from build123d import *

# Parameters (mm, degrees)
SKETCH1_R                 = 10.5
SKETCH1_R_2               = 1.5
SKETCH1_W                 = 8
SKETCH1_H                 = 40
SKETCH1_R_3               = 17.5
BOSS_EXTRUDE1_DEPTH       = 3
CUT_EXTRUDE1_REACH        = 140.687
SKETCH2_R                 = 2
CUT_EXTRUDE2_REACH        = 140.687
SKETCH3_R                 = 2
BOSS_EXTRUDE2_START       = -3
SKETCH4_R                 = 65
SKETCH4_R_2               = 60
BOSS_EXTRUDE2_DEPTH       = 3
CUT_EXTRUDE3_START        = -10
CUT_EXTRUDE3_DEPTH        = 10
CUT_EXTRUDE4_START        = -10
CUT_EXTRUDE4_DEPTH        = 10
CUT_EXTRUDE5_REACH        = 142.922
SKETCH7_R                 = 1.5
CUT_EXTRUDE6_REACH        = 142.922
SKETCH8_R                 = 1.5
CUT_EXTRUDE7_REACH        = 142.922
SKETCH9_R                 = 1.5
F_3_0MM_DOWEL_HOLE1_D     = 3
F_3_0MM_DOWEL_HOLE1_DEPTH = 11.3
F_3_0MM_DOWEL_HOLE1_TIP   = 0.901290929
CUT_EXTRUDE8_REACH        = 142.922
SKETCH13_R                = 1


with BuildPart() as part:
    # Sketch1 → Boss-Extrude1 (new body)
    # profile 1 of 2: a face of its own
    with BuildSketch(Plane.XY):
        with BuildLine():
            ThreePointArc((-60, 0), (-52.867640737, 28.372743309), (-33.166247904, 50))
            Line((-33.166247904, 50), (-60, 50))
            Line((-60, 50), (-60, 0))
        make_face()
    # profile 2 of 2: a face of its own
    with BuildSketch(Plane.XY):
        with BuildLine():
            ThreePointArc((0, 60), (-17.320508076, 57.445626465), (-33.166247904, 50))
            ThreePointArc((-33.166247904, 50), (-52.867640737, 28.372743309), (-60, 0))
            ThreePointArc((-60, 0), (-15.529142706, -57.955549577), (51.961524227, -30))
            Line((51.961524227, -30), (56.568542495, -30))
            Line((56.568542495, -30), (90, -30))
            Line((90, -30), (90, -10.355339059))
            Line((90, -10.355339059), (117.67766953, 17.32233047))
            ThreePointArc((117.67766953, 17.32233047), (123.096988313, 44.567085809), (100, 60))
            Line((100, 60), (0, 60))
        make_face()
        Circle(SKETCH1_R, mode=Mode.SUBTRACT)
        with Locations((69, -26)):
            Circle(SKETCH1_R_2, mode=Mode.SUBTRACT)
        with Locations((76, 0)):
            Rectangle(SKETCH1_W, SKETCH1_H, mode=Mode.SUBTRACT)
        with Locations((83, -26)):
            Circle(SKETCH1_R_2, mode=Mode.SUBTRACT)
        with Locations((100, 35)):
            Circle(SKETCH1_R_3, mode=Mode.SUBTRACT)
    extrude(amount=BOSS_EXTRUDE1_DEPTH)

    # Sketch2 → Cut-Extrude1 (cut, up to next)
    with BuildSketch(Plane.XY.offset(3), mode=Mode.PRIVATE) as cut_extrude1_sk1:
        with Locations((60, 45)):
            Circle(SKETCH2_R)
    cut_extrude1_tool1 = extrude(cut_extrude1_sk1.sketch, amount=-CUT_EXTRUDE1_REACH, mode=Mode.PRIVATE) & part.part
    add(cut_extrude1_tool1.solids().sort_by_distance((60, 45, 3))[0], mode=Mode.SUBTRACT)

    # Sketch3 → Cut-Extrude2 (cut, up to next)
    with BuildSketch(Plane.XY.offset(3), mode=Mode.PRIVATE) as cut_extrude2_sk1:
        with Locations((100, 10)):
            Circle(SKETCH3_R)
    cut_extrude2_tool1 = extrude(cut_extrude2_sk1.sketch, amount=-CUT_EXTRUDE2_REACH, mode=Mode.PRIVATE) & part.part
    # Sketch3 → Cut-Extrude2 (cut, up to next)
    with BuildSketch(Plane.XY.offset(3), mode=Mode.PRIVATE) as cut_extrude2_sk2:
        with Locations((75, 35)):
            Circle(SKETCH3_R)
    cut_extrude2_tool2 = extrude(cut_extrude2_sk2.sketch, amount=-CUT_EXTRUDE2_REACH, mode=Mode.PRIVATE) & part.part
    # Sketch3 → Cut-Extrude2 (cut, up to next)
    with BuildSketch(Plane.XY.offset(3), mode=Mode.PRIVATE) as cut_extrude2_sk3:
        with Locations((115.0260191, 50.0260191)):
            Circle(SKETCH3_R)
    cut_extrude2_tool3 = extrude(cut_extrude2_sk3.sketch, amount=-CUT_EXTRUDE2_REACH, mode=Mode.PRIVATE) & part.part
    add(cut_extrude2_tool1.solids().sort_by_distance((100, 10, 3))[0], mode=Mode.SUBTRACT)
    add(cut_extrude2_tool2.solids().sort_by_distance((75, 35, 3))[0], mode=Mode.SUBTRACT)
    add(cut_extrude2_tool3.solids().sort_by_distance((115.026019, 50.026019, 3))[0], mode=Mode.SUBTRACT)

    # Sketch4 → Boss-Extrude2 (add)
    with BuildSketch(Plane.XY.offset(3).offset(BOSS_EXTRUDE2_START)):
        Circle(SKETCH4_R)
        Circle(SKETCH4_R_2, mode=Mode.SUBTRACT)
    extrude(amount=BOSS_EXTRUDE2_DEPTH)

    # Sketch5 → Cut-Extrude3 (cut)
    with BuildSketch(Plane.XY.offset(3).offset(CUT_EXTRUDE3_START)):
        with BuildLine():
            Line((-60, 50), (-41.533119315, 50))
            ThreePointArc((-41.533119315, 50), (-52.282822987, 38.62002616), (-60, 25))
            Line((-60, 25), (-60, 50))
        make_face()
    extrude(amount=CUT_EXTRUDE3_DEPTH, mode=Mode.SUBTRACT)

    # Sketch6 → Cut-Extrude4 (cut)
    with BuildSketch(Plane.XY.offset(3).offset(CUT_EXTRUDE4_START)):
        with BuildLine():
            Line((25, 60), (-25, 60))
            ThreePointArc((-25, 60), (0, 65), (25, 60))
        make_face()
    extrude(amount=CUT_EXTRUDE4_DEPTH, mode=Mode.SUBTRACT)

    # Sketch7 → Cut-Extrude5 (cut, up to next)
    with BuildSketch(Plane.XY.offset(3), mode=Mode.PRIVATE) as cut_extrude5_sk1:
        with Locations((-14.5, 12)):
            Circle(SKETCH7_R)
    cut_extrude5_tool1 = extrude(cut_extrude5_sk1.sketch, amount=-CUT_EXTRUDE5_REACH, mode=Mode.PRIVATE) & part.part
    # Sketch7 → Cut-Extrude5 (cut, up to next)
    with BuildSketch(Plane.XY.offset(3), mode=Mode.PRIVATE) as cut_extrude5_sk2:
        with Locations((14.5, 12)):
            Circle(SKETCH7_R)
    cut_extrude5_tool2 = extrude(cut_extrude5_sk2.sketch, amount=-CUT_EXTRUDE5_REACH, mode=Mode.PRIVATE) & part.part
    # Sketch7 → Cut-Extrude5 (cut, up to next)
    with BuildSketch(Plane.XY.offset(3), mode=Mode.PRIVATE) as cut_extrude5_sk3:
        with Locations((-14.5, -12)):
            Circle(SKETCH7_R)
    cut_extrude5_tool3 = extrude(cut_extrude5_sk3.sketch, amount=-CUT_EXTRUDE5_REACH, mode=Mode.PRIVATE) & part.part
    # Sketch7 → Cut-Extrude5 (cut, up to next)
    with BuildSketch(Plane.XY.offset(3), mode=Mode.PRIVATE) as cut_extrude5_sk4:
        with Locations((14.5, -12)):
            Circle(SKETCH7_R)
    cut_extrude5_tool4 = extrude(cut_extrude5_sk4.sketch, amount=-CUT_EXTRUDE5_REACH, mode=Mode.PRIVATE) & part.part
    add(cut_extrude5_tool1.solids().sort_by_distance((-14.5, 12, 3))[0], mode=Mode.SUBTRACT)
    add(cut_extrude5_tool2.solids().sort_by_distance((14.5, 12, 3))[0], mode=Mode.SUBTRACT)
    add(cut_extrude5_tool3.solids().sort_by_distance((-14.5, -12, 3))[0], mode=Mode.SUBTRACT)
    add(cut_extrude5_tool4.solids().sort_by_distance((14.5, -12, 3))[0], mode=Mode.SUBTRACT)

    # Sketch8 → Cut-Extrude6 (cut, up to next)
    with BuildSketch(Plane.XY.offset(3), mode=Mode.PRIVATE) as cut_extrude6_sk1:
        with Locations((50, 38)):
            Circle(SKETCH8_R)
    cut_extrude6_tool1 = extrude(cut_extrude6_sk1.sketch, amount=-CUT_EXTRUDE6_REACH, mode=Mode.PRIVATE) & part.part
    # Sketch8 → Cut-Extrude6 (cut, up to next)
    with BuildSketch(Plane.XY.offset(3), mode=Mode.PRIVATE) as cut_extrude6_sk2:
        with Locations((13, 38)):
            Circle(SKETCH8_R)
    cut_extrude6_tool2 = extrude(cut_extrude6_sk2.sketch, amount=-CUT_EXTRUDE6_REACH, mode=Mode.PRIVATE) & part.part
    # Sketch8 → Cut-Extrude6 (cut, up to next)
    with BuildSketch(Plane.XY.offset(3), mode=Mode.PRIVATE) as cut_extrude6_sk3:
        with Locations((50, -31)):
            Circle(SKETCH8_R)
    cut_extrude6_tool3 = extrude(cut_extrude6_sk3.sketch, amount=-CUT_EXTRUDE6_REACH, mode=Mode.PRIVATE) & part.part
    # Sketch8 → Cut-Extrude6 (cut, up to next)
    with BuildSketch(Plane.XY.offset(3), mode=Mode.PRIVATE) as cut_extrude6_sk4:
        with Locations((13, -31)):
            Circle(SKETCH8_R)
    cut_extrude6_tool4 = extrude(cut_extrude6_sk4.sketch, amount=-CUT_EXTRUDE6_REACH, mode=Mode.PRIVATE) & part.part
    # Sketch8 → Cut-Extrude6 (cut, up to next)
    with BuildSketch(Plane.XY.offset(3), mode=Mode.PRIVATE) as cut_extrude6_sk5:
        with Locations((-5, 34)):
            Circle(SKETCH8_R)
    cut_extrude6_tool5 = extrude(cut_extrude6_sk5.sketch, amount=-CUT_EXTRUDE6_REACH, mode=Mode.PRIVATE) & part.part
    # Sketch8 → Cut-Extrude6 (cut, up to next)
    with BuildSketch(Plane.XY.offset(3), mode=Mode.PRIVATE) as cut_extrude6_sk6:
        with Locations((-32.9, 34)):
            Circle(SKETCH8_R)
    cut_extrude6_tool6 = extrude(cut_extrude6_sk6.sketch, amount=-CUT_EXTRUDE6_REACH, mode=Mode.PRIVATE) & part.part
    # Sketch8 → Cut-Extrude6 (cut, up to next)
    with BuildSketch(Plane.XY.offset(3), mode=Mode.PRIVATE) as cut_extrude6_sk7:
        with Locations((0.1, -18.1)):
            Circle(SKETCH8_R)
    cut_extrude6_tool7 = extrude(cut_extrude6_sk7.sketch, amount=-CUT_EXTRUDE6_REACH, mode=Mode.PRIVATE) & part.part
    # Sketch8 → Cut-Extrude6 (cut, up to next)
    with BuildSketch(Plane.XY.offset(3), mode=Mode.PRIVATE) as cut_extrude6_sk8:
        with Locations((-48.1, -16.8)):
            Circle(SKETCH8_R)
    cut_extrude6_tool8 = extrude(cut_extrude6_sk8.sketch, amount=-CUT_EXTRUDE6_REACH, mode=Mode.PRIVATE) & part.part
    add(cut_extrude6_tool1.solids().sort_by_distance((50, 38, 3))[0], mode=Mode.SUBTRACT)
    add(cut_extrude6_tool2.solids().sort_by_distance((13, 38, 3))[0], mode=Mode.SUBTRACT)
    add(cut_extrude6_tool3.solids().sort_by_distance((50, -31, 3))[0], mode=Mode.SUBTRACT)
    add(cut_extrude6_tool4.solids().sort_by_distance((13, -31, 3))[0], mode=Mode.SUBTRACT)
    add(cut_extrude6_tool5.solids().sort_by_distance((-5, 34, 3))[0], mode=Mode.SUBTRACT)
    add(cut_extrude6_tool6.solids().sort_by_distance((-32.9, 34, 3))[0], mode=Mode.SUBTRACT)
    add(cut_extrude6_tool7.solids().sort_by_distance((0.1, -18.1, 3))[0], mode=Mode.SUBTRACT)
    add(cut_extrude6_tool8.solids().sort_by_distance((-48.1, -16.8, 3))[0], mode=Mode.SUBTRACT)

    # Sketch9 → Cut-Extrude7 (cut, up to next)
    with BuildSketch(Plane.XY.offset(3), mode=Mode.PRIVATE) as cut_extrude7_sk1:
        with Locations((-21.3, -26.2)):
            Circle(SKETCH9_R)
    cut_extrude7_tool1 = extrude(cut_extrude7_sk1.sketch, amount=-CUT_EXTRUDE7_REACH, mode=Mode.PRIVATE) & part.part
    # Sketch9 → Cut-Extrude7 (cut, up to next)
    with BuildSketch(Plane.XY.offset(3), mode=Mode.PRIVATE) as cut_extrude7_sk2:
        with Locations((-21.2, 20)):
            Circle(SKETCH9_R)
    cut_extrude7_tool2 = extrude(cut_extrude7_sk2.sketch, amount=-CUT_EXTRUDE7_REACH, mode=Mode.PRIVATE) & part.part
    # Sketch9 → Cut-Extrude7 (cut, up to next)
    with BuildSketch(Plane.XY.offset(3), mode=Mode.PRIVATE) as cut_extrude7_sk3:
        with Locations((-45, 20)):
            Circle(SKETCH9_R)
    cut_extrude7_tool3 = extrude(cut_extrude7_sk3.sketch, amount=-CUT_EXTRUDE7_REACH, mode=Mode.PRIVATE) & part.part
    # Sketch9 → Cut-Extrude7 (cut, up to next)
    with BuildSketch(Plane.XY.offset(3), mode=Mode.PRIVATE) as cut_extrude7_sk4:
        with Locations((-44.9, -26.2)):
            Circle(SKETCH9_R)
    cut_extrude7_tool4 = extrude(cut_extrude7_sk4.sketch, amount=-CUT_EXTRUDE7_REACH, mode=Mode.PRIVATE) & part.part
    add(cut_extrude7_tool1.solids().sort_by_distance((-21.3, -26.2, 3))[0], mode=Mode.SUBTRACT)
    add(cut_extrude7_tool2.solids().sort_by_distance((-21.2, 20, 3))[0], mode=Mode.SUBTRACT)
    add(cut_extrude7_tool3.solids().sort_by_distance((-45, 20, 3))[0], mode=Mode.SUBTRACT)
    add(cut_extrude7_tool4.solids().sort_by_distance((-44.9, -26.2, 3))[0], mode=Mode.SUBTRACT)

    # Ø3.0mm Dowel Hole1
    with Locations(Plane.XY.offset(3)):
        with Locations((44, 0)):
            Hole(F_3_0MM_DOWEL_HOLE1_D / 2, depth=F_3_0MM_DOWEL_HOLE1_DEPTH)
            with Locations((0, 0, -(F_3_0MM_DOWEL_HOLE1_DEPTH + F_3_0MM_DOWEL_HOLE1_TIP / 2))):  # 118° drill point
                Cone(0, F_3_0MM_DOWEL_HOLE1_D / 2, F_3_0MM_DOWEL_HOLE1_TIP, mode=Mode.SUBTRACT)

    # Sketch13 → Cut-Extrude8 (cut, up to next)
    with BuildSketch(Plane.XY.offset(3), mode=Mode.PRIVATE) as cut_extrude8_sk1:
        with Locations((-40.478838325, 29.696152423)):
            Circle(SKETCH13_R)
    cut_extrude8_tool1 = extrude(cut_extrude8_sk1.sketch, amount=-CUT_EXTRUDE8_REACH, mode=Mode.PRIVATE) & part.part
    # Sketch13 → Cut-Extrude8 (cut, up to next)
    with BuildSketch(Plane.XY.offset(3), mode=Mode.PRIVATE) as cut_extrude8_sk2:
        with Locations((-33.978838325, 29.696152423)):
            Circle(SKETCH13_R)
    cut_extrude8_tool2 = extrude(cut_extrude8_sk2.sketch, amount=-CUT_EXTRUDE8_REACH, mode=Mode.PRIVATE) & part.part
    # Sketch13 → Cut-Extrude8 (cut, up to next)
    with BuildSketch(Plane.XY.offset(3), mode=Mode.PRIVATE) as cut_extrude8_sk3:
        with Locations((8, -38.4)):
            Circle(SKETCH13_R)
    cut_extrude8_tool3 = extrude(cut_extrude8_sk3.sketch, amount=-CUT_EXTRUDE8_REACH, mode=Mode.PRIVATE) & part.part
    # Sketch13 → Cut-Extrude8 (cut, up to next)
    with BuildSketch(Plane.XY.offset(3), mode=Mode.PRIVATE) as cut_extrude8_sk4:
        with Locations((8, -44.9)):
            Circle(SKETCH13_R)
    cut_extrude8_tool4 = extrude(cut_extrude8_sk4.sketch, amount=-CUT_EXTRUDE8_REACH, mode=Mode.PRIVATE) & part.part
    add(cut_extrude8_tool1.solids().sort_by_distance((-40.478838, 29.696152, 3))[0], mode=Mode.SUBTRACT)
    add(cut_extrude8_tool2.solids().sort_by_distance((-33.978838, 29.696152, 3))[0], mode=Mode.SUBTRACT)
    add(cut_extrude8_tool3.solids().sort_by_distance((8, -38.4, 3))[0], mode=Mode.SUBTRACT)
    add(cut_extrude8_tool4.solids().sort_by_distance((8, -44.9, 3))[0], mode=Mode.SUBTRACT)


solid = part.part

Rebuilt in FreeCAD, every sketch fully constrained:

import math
import FreeCAD as App
import Part
import Sketcher

V = App.Vector
Q = App.Units.Quantity


def add_polygon(sketch, points):
    """Adds a closed chain of lines whose ends are joined by coincident constraints."""
    first, n = sketch.GeometryCount, len(points)
    for a, b in zip(points, points[1:] + points[:1]):
        sketch.addGeometry(Part.LineSegment(App.Vector(*a, 0), App.Vector(*b, 0)), False)
    for i in range(n):
        sketch.addConstraint(Sketcher.Constraint("Coincident", first + i, 2, first + (i + 1) % n, 1))

doc = App.newDocument("Part")
body = doc.addObject("PartDesign::Body", "Body")

sketch1 = doc.addObject("Sketcher::SketchObject", "Sketch")
body.addObject(sketch1)
sketch1.AttachmentSupport = (doc.XY_Plane, [""])
sketch1.MapMode = "FlatFace"
sketch1.addGeometry(Part.LineSegment(V(-33.2, 50, 0), V(-60, 50, 0)), False)
sketch1.addGeometry(Part.LineSegment(V(-60, 50, 0), V(-60, 0, 0)), False)
sketch1.addGeometry(Part.ArcOfCircle(Part.Circle(V(0, 0, 0), V(0, 0, 1), 60), math.radians(180), math.radians(330)), False)
sketch1.addGeometry(Part.LineSegment(V(52, -30, 0), V(90, -30, 0)), False)
sketch1.addGeometry(Part.LineSegment(V(90, -30, 0), V(90, -10.4, 0)), False)
sketch1.addGeometry(Part.LineSegment(V(90, -10.4, 0), V(117.7, 17.3, 0)), False)
sketch1.addGeometry(Part.ArcOfCircle(Part.Circle(V(100, 35, 0), V(0, 0, 1), 25), math.radians(-45), math.radians(90)), False)
sketch1.addGeometry(Part.LineSegment(V(100, 60, 0), V(0, 60, 0)), False)
sketch1.addGeometry(Part.ArcOfCircle(Part.Circle(V(0, 0, 0), V(0, 0, 1), 60), math.radians(90), math.radians(124)), False)
sketch1.addGeometry(Part.Circle(V(100, 35, 0), V(0, 0, 1), 17.5), False)
sketch1.addGeometry(Part.Circle(V(0, 0, 0), V(0, 0, 1), 10.5), False)
sketch1.addGeometry(Part.Circle(V(69, -26, 0), V(0, 0, 1), 1.5), False)
sketch1.addGeometry(Part.Circle(V(83, -26, 0), V(0, 0, 1), 1.5), False)
add_polygon(sketch1, [(80, -20), (72, -20), (72, 20), (80, 20)])
sketch1.addConstraint([
    Sketcher.Constraint("Coincident", 0, 2, 1, 1),
    Sketcher.Constraint("Tangent", 1, 2, 2, 1),
    Sketcher.Constraint("Coincident", 2, 2, 3, 1),
    Sketcher.Constraint("Coincident", 3, 2, 4, 1),
    Sketcher.Constraint("Coincident", 4, 2, 5, 1),
    Sketcher.Constraint("Tangent", 5, 2, 6, 1),
    Sketcher.Constraint("Tangent", 6, 2, 7, 1),
    Sketcher.Constraint("Tangent", 7, 2, 8, 1),
    Sketcher.Constraint("Coincident", 8, 2, 0, 1),
    Sketcher.Constraint("Horizontal", 0),
    Sketcher.Constraint("Vertical", 1),
    Sketcher.Constraint("Horizontal", 3),
    Sketcher.Constraint("Vertical", 4),
    Sketcher.Constraint("Horizontal", 7),
    Sketcher.Constraint("Horizontal", 13),
    Sketcher.Constraint("Vertical", 14),
    Sketcher.Constraint("Horizontal", 15),
    Sketcher.Constraint("Vertical", 16),
    Sketcher.Constraint("Coincident", 2, 3, -1, 1),
    Sketcher.Constraint("Coincident", 8, 3, -1, 1),
    Sketcher.Constraint("Coincident", 10, 3, -1, 1),
    Sketcher.Constraint("Coincident", 9, 3, 6, 3),
    Sketcher.Constraint("Equal", 2, 8),
    Sketcher.Constraint("Equal", 11, 12),
    Sketcher.Constraint("Horizontal", 11, 3, 12, 3),
    Sketcher.Constraint("Diameter", 9, 35.0),
    Sketcher.Constraint("Diameter", 10, 21.0),
    Sketcher.Constraint("Diameter", 11, 3.0),
    Sketcher.Constraint("Radius", 2, 60.0),
    Sketcher.Constraint("Radius", 6, 25.0),
    Sketcher.Constraint("DistanceX", 7, 2, 7, 1, 100.0),
    Sketcher.Constraint("DistanceX", 13, 2, 13, 1, 8.0),
    Sketcher.Constraint("DistanceY", 1, 2, 1, 1, 50.0),
    Sketcher.Constraint("DistanceY", 14, 1, 14, 2, 40.0),
    Sketcher.Constraint("Angle", 5, Q("45 deg")),
    Sketcher.Constraint("DistanceX", -1, 1, 11, 3, 69.0),
    Sketcher.Constraint("DistanceY", 11, 3, -1, 1, 26.0),
    Sketcher.Constraint("DistanceX", -1, 1, 12, 3, 83.0),
    Sketcher.Constraint("DistanceY", 2, 2, -1, 1, 30.0),
    Sketcher.Constraint("DistanceX", -1, 1, 3, 2, 90.0),
    Sketcher.Constraint("DistanceX", -1, 1, 13, 2, 72.0),
    Sketcher.Constraint("DistanceY", 13, 2, -1, 1, 20.0),
])
pad1 = doc.addObject("PartDesign::Pad", "Pad")
body.addObject(pad1)
pad1.Profile = sketch1
pad1.Length = 3

sketch2 = doc.addObject("Sketcher::SketchObject", "Sketch001")
body.addObject(sketch2)
sketch2.AttachmentSupport = (doc.XY_Plane, [""])
sketch2.MapMode = "FlatFace"
sketch2.AttachmentOffset = App.Placement(V(0, 0, 3), App.Rotation())
sketch2.addGeometry(Part.Circle(V(60, 45, 0), V(0, 0, 1), 2), False)
sketch2.addConstraint([
    Sketcher.Constraint("Diameter", 0, 4.0),
    Sketcher.Constraint("DistanceX", -1, 1, 0, 3, 60.0),
    Sketcher.Constraint("DistanceY", -1, 1, 0, 3, 45.0),
])
pocket1 = doc.addObject("PartDesign::Pocket", "Pocket")
body.addObject(pocket1)
pocket1.Profile = sketch2
pocket1.Type = "UpToFirst"

sketch3 = doc.addObject("Sketcher::SketchObject", "Sketch002")
body.addObject(sketch3)
sketch3.AttachmentSupport = (doc.XY_Plane, [""])
sketch3.MapMode = "FlatFace"
sketch3.AttachmentOffset = App.Placement(V(0, 0, 3), App.Rotation())
sketch3.addGeometry(Part.Circle(V(100, 10, 0), V(0, 0, 1), 2), False)
sketch3.addConstraint([
    Sketcher.Constraint("Diameter", 0, 4.0),
    Sketcher.Constraint("DistanceX", -1, 1, 0, 3, 100.0),
    Sketcher.Constraint("DistanceY", -1, 1, 0, 3, 10.0),
])
pocket2 = doc.addObject("PartDesign::Pocket", "Pocket001")
body.addObject(pocket2)
pocket2.Profile = sketch3
pocket2.Type = "UpToFirst"

sketch4 = doc.addObject("Sketcher::SketchObject", "Sketch003")
body.addObject(sketch4)
sketch4.AttachmentSupport = (doc.XY_Plane, [""])
sketch4.MapMode = "FlatFace"
sketch4.AttachmentOffset = App.Placement(V(0, 0, 3), App.Rotation())
sketch4.addGeometry(Part.Circle(V(75, 35, 0), V(0, 0, 1), 2), False)
sketch4.addConstraint([
    Sketcher.Constraint("Diameter", 0, 4.0),
    Sketcher.Constraint("DistanceX", -1, 1, 0, 3, 75.0),
    Sketcher.Constraint("DistanceY", -1, 1, 0, 3, 35.0),
])
pocket3 = doc.addObject("PartDesign::Pocket", "Pocket002")
body.addObject(pocket3)
pocket3.Profile = sketch4
pocket3.Type = "UpToFirst"

sketch5 = doc.addObject("Sketcher::SketchObject", "Sketch004")
body.addObject(sketch5)
sketch5.AttachmentSupport = (doc.XY_Plane, [""])
sketch5.MapMode = "FlatFace"
sketch5.AttachmentOffset = App.Placement(V(0, 0, 3), App.Rotation())
sketch5.addGeometry(Part.Circle(V(115, 50, 0), V(0, 0, 1), 2), False)
sketch5.addConstraint([
    Sketcher.Constraint("Diameter", 0, 4.0),
    Sketcher.Constraint("DistanceX", -1, 1, 0, 3, 115.026019),
    Sketcher.Constraint("DistanceY", -1, 1, 0, 3, 50.026019),
])
pocket4 = doc.addObject("PartDesign::Pocket", "Pocket003")
body.addObject(pocket4)
pocket4.Profile = sketch5
pocket4.Type = "UpToFirst"

sketch6 = doc.addObject("Sketcher::SketchObject", "Sketch005")
body.addObject(sketch6)
sketch6.AttachmentSupport = (doc.XY_Plane, [""])
sketch6.MapMode = "FlatFace"
sketch6.addGeometry([
    Part.Circle(V(0, 0, 0), V(0, 0, 1), 65),
    Part.Circle(V(0, 0, 0), V(0, 0, 1), 60),
], False)
sketch6.addConstraint([
    Sketcher.Constraint("Coincident", 0, 3, -1, 1),
    Sketcher.Constraint("Coincident", 1, 3, -1, 1),
    Sketcher.Constraint("Diameter", 0, 130.0),
    Sketcher.Constraint("Diameter", 1, 120.0),
])
pad2 = doc.addObject("PartDesign::Pad", "Pad001")
body.addObject(pad2)
pad2.Profile = sketch6
pad2.Length = 3

sketch7 = doc.addObject("Sketcher::SketchObject", "Sketch006")
body.addObject(sketch7)
sketch7.AttachmentSupport = (doc.XY_Plane, [""])
sketch7.MapMode = "FlatFace"
sketch7.AttachmentOffset = App.Placement(V(0, 0, -7), App.Rotation())
sketch7.addGeometry([
    Part.LineSegment(V(-42, 50, 0), V(-60, 50, 0)),
    Part.LineSegment(V(-60, 50, 0), V(-60, 25, 0)),
    Part.ArcOfCircle(Part.Circle(V(0, 0, 0), V(0, 0, 1), 65), math.radians(130), math.radians(157)),
], False)
sketch7.addConstraint([
    Sketcher.Constraint("Coincident", 0, 2, 1, 1),
    Sketcher.Constraint("Coincident", 1, 2, 2, 2),
    Sketcher.Constraint("Coincident", 2, 1, 0, 1),
    Sketcher.Constraint("Horizontal", 0),
    Sketcher.Constraint("Vertical", 1),
    Sketcher.Constraint("Coincident", 2, 3, -1, 1),
    Sketcher.Constraint("Radius", 2, 65.0),
    Sketcher.Constraint("DistanceY", 1, 2, 1, 1, 25.0),
    Sketcher.Constraint("DistanceX", 0, 2, -1, 1, 60.0),
])
pocket5 = doc.addObject("PartDesign::Pocket", "Pocket004")
body.addObject(pocket5)
pocket5.Profile = sketch7
pocket5.Length = 10
pocket5.Reversed = True

sketch8 = doc.addObject("Sketcher::SketchObject", "Sketch007")
body.addObject(sketch8)
sketch8.AttachmentSupport = (doc.XY_Plane, [""])
sketch8.MapMode = "FlatFace"
sketch8.AttachmentOffset = App.Placement(V(0, 0, -7), App.Rotation())
sketch8.addGeometry([
    Part.LineSegment(V(-25, 60, 0), V(25, 60, 0)),
    Part.ArcOfCircle(Part.Circle(V(0, 0, 0), V(0, 0, 1), 65), math.radians(67), math.radians(113)),
], False)
sketch8.addConstraint([
    Sketcher.Constraint("Coincident", 0, 1, 1, 2),
    Sketcher.Constraint("Coincident", 1, 1, 0, 2),
    Sketcher.Constraint("Horizontal", 0),
    Sketcher.Constraint("Coincident", 1, 3, -1, 1),
    Sketcher.Constraint("Radius", 1, 65.0),
    Sketcher.Constraint("DistanceX", 0, 1, 0, 2, 50.0),
])
pocket6 = doc.addObject("PartDesign::Pocket", "Pocket005")
body.addObject(pocket6)
pocket6.Profile = sketch8
pocket6.Length = 10
pocket6.Reversed = True

sketch9 = doc.addObject("Sketcher::SketchObject", "Sketch008")
body.addObject(sketch9)
sketch9.AttachmentSupport = (doc.XY_Plane, [""])
sketch9.MapMode = "FlatFace"
sketch9.AttachmentOffset = App.Placement(V(0, 0, 3), App.Rotation())
sketch9.addGeometry(Part.Circle(V(-14.5, 12, 0), V(0, 0, 1), 1.5), False)
sketch9.addConstraint([
    Sketcher.Constraint("Diameter", 0, 3.0),
    Sketcher.Constraint("DistanceY", -1, 1, 0, 3, 12.0),
    Sketcher.Constraint("DistanceX", 0, 3, -1, 1, 14.5),
])
pocket7 = doc.addObject("PartDesign::Pocket", "Pocket006")
body.addObject(pocket7)
pocket7.Profile = sketch9
pocket7.Type = "UpToFirst"

sketch10 = doc.addObject("Sketcher::SketchObject", "Sketch009")
body.addObject(sketch10)
sketch10.AttachmentSupport = (doc.XY_Plane, [""])
sketch10.MapMode = "FlatFace"
sketch10.AttachmentOffset = App.Placement(V(0, 0, 3), App.Rotation())
sketch10.addGeometry(Part.Circle(V(14.5, 12, 0), V(0, 0, 1), 1.5), False)
sketch10.addConstraint([
    Sketcher.Constraint("Diameter", 0, 3.0),
    Sketcher.Constraint("DistanceY", -1, 1, 0, 3, 12.0),
    Sketcher.Constraint("DistanceX", -1, 1, 0, 3, 14.5),
])
pocket8 = doc.addObject("PartDesign::Pocket", "Pocket007")
body.addObject(pocket8)
pocket8.Profile = sketch10
pocket8.Type = "UpToFirst"

sketch11 = doc.addObject("Sketcher::SketchObject", "Sketch010")
body.addObject(sketch11)
sketch11.AttachmentSupport = (doc.XY_Plane, [""])
sketch11.MapMode = "FlatFace"
sketch11.AttachmentOffset = App.Placement(V(0, 0, 3), App.Rotation())
sketch11.addGeometry(Part.Circle(V(-14.5, -12, 0), V(0, 0, 1), 1.5), False)
sketch11.addConstraint([
    Sketcher.Constraint("Diameter", 0, 3.0),
    Sketcher.Constraint("DistanceY", 0, 3, -1, 1, 12.0),
    Sketcher.Constraint("DistanceX", 0, 3, -1, 1, 14.5),
])
pocket9 = doc.addObject("PartDesign::Pocket", "Pocket008")
body.addObject(pocket9)
pocket9.Profile = sketch11
pocket9.Type = "UpToFirst"

sketch12 = doc.addObject("Sketcher::SketchObject", "Sketch011")
body.addObject(sketch12)
sketch12.AttachmentSupport = (doc.XY_Plane, [""])
sketch12.MapMode = "FlatFace"
sketch12.AttachmentOffset = App.Placement(V(0, 0, 3), App.Rotation())
sketch12.addGeometry(Part.Circle(V(14.5, -12, 0), V(0, 0, 1), 1.5), False)
sketch12.addConstraint([
    Sketcher.Constraint("Diameter", 0, 3.0),
    Sketcher.Constraint("DistanceY", 0, 3, -1, 1, 12.0),
    Sketcher.Constraint("DistanceX", -1, 1, 0, 3, 14.5),
])
pocket10 = doc.addObject("PartDesign::Pocket", "Pocket009")
body.addObject(pocket10)
pocket10.Profile = sketch12
pocket10.Type = "UpToFirst"

sketch13 = doc.addObject("Sketcher::SketchObject", "Sketch012")
body.addObject(sketch13)
sketch13.AttachmentSupport = (doc.XY_Plane, [""])
sketch13.MapMode = "FlatFace"
sketch13.AttachmentOffset = App.Placement(V(0, 0, 3), App.Rotation())
sketch13.addGeometry(Part.Circle(V(50, 38, 0), V(0, 0, 1), 1.5), False)
sketch13.addConstraint([
    Sketcher.Constraint("Diameter", 0, 3.0),
    Sketcher.Constraint("DistanceX", -1, 1, 0, 3, 50.0),
    Sketcher.Constraint("DistanceY", -1, 1, 0, 3, 38.0),
])
pocket11 = doc.addObject("PartDesign::Pocket", "Pocket010")
body.addObject(pocket11)
pocket11.Profile = sketch13
pocket11.Type = "UpToFirst"

sketch14 = doc.addObject("Sketcher::SketchObject", "Sketch013")
body.addObject(sketch14)
sketch14.AttachmentSupport = (doc.XY_Plane, [""])
sketch14.MapMode = "FlatFace"
sketch14.AttachmentOffset = App.Placement(V(0, 0, 3), App.Rotation())
sketch14.addGeometry(Part.Circle(V(13, 38, 0), V(0, 0, 1), 1.5), False)
sketch14.addConstraint([
    Sketcher.Constraint("Diameter", 0, 3.0),
    Sketcher.Constraint("DistanceX", -1, 1, 0, 3, 13.0),
    Sketcher.Constraint("DistanceY", -1, 1, 0, 3, 38.0),
])
pocket12 = doc.addObject("PartDesign::Pocket", "Pocket011")
body.addObject(pocket12)
pocket12.Profile = sketch14
pocket12.Type = "UpToFirst"

sketch15 = doc.addObject("Sketcher::SketchObject", "Sketch014")
body.addObject(sketch15)
sketch15.AttachmentSupport = (doc.XY_Plane, [""])
sketch15.MapMode = "FlatFace"
sketch15.AttachmentOffset = App.Placement(V(0, 0, 3), App.Rotation())
sketch15.addGeometry(Part.Circle(V(50, -31, 0), V(0, 0, 1), 1.5), False)
sketch15.addConstraint([
    Sketcher.Constraint("Diameter", 0, 3.0),
    Sketcher.Constraint("DistanceX", -1, 1, 0, 3, 50.0),
    Sketcher.Constraint("DistanceY", 0, 3, -1, 1, 31.0),
])
pocket13 = doc.addObject("PartDesign::Pocket", "Pocket012")
body.addObject(pocket13)
pocket13.Profile = sketch15
pocket13.Type = "UpToFirst"

sketch16 = doc.addObject("Sketcher::SketchObject", "Sketch015")
body.addObject(sketch16)
sketch16.AttachmentSupport = (doc.XY_Plane, [""])
sketch16.MapMode = "FlatFace"
sketch16.AttachmentOffset = App.Placement(V(0, 0, 3), App.Rotation())
sketch16.addGeometry(Part.Circle(V(13, -31, 0), V(0, 0, 1), 1.5), False)
sketch16.addConstraint([
    Sketcher.Constraint("Diameter", 0, 3.0),
    Sketcher.Constraint("DistanceX", -1, 1, 0, 3, 13.0),
    Sketcher.Constraint("DistanceY", 0, 3, -1, 1, 31.0),
])
pocket14 = doc.addObject("PartDesign::Pocket", "Pocket013")
body.addObject(pocket14)
pocket14.Profile = sketch16
pocket14.Type = "UpToFirst"

sketch17 = doc.addObject("Sketcher::SketchObject", "Sketch016")
body.addObject(sketch17)
sketch17.AttachmentSupport = (doc.XY_Plane, [""])
sketch17.MapMode = "FlatFace"
sketch17.AttachmentOffset = App.Placement(V(0, 0, 3), App.Rotation())
sketch17.addGeometry(Part.Circle(V(-5, 34, 0), V(0, 0, 1), 1.5), False)
sketch17.addConstraint([
    Sketcher.Constraint("Diameter", 0, 3.0),
    Sketcher.Constraint("DistanceX", 0, 3, -1, 1, 5.0),
    Sketcher.Constraint("DistanceY", -1, 1, 0, 3, 34.0),
])
pocket15 = doc.addObject("PartDesign::Pocket", "Pocket014")
body.addObject(pocket15)
pocket15.Profile = sketch17
pocket15.Type = "UpToFirst"

sketch18 = doc.addObject("Sketcher::SketchObject", "Sketch017")
body.addObject(sketch18)
sketch18.AttachmentSupport = (doc.XY_Plane, [""])
sketch18.MapMode = "FlatFace"
sketch18.AttachmentOffset = App.Placement(V(0, 0, 3), App.Rotation())
sketch18.addGeometry(Part.Circle(V(-32.9, 34, 0), V(0, 0, 1), 1.5), False)
sketch18.addConstraint([
    Sketcher.Constraint("Diameter", 0, 3.0),
    Sketcher.Constraint("DistanceY", -1, 1, 0, 3, 34.0),
    Sketcher.Constraint("DistanceX", 0, 3, -1, 1, 32.9),
])
pocket16 = doc.addObject("PartDesign::Pocket", "Pocket015")
body.addObject(pocket16)
pocket16.Profile = sketch18
pocket16.Type = "UpToFirst"

sketch19 = doc.addObject("Sketcher::SketchObject", "Sketch018")
body.addObject(sketch19)
sketch19.AttachmentSupport = (doc.XY_Plane, [""])
sketch19.MapMode = "FlatFace"
sketch19.AttachmentOffset = App.Placement(V(0, 0, 3), App.Rotation())
sketch19.addGeometry(Part.Circle(V(0.1, -18.1, 0), V(0, 0, 1), 1.5), False)
sketch19.addConstraint([
    Sketcher.Constraint("Diameter", 0, 3.0),
    Sketcher.Constraint("DistanceX", -1, 1, 0, 3, 0.1),
    Sketcher.Constraint("DistanceY", 0, 3, -1, 1, 18.1),
])
pocket17 = doc.addObject("PartDesign::Pocket", "Pocket016")
body.addObject(pocket17)
pocket17.Profile = sketch19
pocket17.Type = "UpToFirst"

sketch20 = doc.addObject("Sketcher::SketchObject", "Sketch019")
body.addObject(sketch20)
sketch20.AttachmentSupport = (doc.XY_Plane, [""])
sketch20.MapMode = "FlatFace"
sketch20.AttachmentOffset = App.Placement(V(0, 0, 3), App.Rotation())
sketch20.addGeometry(Part.Circle(V(-48.1, -16.8, 0), V(0, 0, 1), 1.5), False)
sketch20.addConstraint([
    Sketcher.Constraint("Diameter", 0, 3.0),
    Sketcher.Constraint("DistanceX", 0, 3, -1, 1, 48.1),
    Sketcher.Constraint("DistanceY", 0, 3, -1, 1, 16.8),
])
pocket18 = doc.addObject("PartDesign::Pocket", "Pocket017")
body.addObject(pocket18)
pocket18.Profile = sketch20
pocket18.Type = "UpToFirst"

sketch21 = doc.addObject("Sketcher::SketchObject", "Sketch020")
body.addObject(sketch21)
sketch21.AttachmentSupport = (doc.XY_Plane, [""])
sketch21.MapMode = "FlatFace"
sketch21.AttachmentOffset = App.Placement(V(0, 0, 3), App.Rotation())
sketch21.addGeometry(Part.Circle(V(-21.3, -26.2, 0), V(0, 0, 1), 1.5), False)
sketch21.addConstraint([
    Sketcher.Constraint("Diameter", 0, 3.0),
    Sketcher.Constraint("DistanceX", 0, 3, -1, 1, 21.3),
    Sketcher.Constraint("DistanceY", 0, 3, -1, 1, 26.2),
])
pocket19 = doc.addObject("PartDesign::Pocket", "Pocket018")
body.addObject(pocket19)
pocket19.Profile = sketch21
pocket19.Type = "UpToFirst"

sketch22 = doc.addObject("Sketcher::SketchObject", "Sketch021")
body.addObject(sketch22)
sketch22.AttachmentSupport = (doc.XY_Plane, [""])
sketch22.MapMode = "FlatFace"
sketch22.AttachmentOffset = App.Placement(V(0, 0, 3), App.Rotation())
sketch22.addGeometry(Part.Circle(V(-21.2, 20, 0), V(0, 0, 1), 1.5), False)
sketch22.addConstraint([
    Sketcher.Constraint("Diameter", 0, 3.0),
    Sketcher.Constraint("DistanceY", -1, 1, 0, 3, 20.0),
    Sketcher.Constraint("DistanceX", 0, 3, -1, 1, 21.2),
])
pocket20 = doc.addObject("PartDesign::Pocket", "Pocket019")
body.addObject(pocket20)
pocket20.Profile = sketch22
pocket20.Type = "UpToFirst"

sketch23 = doc.addObject("Sketcher::SketchObject", "Sketch022")
body.addObject(sketch23)
sketch23.AttachmentSupport = (doc.XY_Plane, [""])
sketch23.MapMode = "FlatFace"
sketch23.AttachmentOffset = App.Placement(V(0, 0, 3), App.Rotation())
sketch23.addGeometry(Part.Circle(V(-45, 20, 0), V(0, 0, 1), 1.5), False)
sketch23.addConstraint([
    Sketcher.Constraint("Diameter", 0, 3.0),
    Sketcher.Constraint("DistanceX", 0, 3, -1, 1, 45.0),
    Sketcher.Constraint("DistanceY", -1, 1, 0, 3, 20.0),
])
pocket21 = doc.addObject("PartDesign::Pocket", "Pocket020")
body.addObject(pocket21)
pocket21.Profile = sketch23
pocket21.Type = "UpToFirst"

sketch24 = doc.addObject("Sketcher::SketchObject", "Sketch023")
body.addObject(sketch24)
sketch24.AttachmentSupport = (doc.XY_Plane, [""])
sketch24.MapMode = "FlatFace"
sketch24.AttachmentOffset = App.Placement(V(0, 0, 3), App.Rotation())
sketch24.addGeometry(Part.Circle(V(-44.9, -26.2, 0), V(0, 0, 1), 1.5), False)
sketch24.addConstraint([
    Sketcher.Constraint("Diameter", 0, 3.0),
    Sketcher.Constraint("DistanceX", 0, 3, -1, 1, 44.9),
    Sketcher.Constraint("DistanceY", 0, 3, -1, 1, 26.2),
])
pocket22 = doc.addObject("PartDesign::Pocket", "Pocket021")
body.addObject(pocket22)
pocket22.Profile = sketch24
pocket22.Type = "UpToFirst"

sketch25 = doc.addObject("Sketcher::SketchObject", "Sketch024")
body.addObject(sketch25)
sketch25.AttachmentSupport = (doc.XY_Plane, [""])
sketch25.MapMode = "FlatFace"
sketch25.AttachmentOffset = App.Placement(V(0, 0, 3), App.Rotation())
sketch25.addGeometry(Part.Circle(V(44, 0, 0), V(0, 0, 1), 1.5), False)
sketch25.addConstraint([
    Sketcher.Constraint("PointOnObject", 0, 3, -1),
    Sketcher.Constraint("Diameter", 0, 3.0),
    Sketcher.Constraint("DistanceX", -1, 1, 0, 3, 44.0),
])
doc.recompute()
hole = doc.addObject("PartDesign::Hole", "Hole")
body.addObject(hole)
hole.Profile = sketch25
hole.ThreadType = "None"
hole.Diameter = 3
hole.DepthType = "Dimension"
hole.Depth = 11.3
hole.DrillPoint = "Angled"
hole.DrillPointAngle = 118

sketch26 = doc.addObject("Sketcher::SketchObject", "Sketch025")
body.addObject(sketch26)
sketch26.AttachmentSupport = (doc.XY_Plane, [""])
sketch26.MapMode = "FlatFace"
sketch26.AttachmentOffset = App.Placement(V(0, 0, 3), App.Rotation())
sketch26.addGeometry(Part.Circle(V(-40.5, 29.7, 0), V(0, 0, 1), 1), False)
sketch26.addConstraint([
    Sketcher.Constraint("Diameter", 0, 2.0),
    Sketcher.Constraint("DistanceX", 0, 3, -1, 1, 40.478838),
    Sketcher.Constraint("DistanceY", -1, 1, 0, 3, 29.696152),
])
pocket23 = doc.addObject("PartDesign::Pocket", "Pocket022")
body.addObject(pocket23)
pocket23.Profile = sketch26
pocket23.Type = "UpToFirst"

sketch27 = doc.addObject("Sketcher::SketchObject", "Sketch026")
body.addObject(sketch27)
sketch27.AttachmentSupport = (doc.XY_Plane, [""])
sketch27.MapMode = "FlatFace"
sketch27.AttachmentOffset = App.Placement(V(0, 0, 3), App.Rotation())
sketch27.addGeometry(Part.Circle(V(-34, 29.7, 0), V(0, 0, 1), 1), False)
sketch27.addConstraint([
    Sketcher.Constraint("Diameter", 0, 2.0),
    Sketcher.Constraint("DistanceX", 0, 3, -1, 1, 33.978838),
    Sketcher.Constraint("DistanceY", -1, 1, 0, 3, 29.696152),
])
pocket24 = doc.addObject("PartDesign::Pocket", "Pocket023")
body.addObject(pocket24)
pocket24.Profile = sketch27
pocket24.Type = "UpToFirst"

sketch28 = doc.addObject("Sketcher::SketchObject", "Sketch027")
body.addObject(sketch28)
sketch28.AttachmentSupport = (doc.XY_Plane, [""])
sketch28.MapMode = "FlatFace"
sketch28.AttachmentOffset = App.Placement(V(0, 0, 3), App.Rotation())
sketch28.addGeometry(Part.Circle(V(8, -38.4, 0), V(0, 0, 1), 1), False)
sketch28.addConstraint([
    Sketcher.Constraint("Diameter", 0, 2.0),
    Sketcher.Constraint("DistanceX", -1, 1, 0, 3, 8.0),
    Sketcher.Constraint("DistanceY", 0, 3, -1, 1, 38.4),
])
pocket25 = doc.addObject("PartDesign::Pocket", "Pocket024")
body.addObject(pocket25)
pocket25.Profile = sketch28
pocket25.Type = "UpToFirst"

sketch29 = doc.addObject("Sketcher::SketchObject", "Sketch028")
body.addObject(sketch29)
sketch29.AttachmentSupport = (doc.XY_Plane, [""])
sketch29.MapMode = "FlatFace"
sketch29.AttachmentOffset = App.Placement(V(0, 0, 3), App.Rotation())
sketch29.addGeometry(Part.Circle(V(8, -44.9, 0), V(0, 0, 1), 1), False)
sketch29.addConstraint([
    Sketcher.Constraint("Diameter", 0, 2.0),
    Sketcher.Constraint("DistanceX", -1, 1, 0, 3, 8.0),
    Sketcher.Constraint("DistanceY", 0, 3, -1, 1, 44.9),
])
pocket26 = doc.addObject("PartDesign::Pocket", "Pocket025")
body.addObject(pocket26)
pocket26.Profile = sketch29
pocket26.Type = "UpToFirst"

doc.recompute()
